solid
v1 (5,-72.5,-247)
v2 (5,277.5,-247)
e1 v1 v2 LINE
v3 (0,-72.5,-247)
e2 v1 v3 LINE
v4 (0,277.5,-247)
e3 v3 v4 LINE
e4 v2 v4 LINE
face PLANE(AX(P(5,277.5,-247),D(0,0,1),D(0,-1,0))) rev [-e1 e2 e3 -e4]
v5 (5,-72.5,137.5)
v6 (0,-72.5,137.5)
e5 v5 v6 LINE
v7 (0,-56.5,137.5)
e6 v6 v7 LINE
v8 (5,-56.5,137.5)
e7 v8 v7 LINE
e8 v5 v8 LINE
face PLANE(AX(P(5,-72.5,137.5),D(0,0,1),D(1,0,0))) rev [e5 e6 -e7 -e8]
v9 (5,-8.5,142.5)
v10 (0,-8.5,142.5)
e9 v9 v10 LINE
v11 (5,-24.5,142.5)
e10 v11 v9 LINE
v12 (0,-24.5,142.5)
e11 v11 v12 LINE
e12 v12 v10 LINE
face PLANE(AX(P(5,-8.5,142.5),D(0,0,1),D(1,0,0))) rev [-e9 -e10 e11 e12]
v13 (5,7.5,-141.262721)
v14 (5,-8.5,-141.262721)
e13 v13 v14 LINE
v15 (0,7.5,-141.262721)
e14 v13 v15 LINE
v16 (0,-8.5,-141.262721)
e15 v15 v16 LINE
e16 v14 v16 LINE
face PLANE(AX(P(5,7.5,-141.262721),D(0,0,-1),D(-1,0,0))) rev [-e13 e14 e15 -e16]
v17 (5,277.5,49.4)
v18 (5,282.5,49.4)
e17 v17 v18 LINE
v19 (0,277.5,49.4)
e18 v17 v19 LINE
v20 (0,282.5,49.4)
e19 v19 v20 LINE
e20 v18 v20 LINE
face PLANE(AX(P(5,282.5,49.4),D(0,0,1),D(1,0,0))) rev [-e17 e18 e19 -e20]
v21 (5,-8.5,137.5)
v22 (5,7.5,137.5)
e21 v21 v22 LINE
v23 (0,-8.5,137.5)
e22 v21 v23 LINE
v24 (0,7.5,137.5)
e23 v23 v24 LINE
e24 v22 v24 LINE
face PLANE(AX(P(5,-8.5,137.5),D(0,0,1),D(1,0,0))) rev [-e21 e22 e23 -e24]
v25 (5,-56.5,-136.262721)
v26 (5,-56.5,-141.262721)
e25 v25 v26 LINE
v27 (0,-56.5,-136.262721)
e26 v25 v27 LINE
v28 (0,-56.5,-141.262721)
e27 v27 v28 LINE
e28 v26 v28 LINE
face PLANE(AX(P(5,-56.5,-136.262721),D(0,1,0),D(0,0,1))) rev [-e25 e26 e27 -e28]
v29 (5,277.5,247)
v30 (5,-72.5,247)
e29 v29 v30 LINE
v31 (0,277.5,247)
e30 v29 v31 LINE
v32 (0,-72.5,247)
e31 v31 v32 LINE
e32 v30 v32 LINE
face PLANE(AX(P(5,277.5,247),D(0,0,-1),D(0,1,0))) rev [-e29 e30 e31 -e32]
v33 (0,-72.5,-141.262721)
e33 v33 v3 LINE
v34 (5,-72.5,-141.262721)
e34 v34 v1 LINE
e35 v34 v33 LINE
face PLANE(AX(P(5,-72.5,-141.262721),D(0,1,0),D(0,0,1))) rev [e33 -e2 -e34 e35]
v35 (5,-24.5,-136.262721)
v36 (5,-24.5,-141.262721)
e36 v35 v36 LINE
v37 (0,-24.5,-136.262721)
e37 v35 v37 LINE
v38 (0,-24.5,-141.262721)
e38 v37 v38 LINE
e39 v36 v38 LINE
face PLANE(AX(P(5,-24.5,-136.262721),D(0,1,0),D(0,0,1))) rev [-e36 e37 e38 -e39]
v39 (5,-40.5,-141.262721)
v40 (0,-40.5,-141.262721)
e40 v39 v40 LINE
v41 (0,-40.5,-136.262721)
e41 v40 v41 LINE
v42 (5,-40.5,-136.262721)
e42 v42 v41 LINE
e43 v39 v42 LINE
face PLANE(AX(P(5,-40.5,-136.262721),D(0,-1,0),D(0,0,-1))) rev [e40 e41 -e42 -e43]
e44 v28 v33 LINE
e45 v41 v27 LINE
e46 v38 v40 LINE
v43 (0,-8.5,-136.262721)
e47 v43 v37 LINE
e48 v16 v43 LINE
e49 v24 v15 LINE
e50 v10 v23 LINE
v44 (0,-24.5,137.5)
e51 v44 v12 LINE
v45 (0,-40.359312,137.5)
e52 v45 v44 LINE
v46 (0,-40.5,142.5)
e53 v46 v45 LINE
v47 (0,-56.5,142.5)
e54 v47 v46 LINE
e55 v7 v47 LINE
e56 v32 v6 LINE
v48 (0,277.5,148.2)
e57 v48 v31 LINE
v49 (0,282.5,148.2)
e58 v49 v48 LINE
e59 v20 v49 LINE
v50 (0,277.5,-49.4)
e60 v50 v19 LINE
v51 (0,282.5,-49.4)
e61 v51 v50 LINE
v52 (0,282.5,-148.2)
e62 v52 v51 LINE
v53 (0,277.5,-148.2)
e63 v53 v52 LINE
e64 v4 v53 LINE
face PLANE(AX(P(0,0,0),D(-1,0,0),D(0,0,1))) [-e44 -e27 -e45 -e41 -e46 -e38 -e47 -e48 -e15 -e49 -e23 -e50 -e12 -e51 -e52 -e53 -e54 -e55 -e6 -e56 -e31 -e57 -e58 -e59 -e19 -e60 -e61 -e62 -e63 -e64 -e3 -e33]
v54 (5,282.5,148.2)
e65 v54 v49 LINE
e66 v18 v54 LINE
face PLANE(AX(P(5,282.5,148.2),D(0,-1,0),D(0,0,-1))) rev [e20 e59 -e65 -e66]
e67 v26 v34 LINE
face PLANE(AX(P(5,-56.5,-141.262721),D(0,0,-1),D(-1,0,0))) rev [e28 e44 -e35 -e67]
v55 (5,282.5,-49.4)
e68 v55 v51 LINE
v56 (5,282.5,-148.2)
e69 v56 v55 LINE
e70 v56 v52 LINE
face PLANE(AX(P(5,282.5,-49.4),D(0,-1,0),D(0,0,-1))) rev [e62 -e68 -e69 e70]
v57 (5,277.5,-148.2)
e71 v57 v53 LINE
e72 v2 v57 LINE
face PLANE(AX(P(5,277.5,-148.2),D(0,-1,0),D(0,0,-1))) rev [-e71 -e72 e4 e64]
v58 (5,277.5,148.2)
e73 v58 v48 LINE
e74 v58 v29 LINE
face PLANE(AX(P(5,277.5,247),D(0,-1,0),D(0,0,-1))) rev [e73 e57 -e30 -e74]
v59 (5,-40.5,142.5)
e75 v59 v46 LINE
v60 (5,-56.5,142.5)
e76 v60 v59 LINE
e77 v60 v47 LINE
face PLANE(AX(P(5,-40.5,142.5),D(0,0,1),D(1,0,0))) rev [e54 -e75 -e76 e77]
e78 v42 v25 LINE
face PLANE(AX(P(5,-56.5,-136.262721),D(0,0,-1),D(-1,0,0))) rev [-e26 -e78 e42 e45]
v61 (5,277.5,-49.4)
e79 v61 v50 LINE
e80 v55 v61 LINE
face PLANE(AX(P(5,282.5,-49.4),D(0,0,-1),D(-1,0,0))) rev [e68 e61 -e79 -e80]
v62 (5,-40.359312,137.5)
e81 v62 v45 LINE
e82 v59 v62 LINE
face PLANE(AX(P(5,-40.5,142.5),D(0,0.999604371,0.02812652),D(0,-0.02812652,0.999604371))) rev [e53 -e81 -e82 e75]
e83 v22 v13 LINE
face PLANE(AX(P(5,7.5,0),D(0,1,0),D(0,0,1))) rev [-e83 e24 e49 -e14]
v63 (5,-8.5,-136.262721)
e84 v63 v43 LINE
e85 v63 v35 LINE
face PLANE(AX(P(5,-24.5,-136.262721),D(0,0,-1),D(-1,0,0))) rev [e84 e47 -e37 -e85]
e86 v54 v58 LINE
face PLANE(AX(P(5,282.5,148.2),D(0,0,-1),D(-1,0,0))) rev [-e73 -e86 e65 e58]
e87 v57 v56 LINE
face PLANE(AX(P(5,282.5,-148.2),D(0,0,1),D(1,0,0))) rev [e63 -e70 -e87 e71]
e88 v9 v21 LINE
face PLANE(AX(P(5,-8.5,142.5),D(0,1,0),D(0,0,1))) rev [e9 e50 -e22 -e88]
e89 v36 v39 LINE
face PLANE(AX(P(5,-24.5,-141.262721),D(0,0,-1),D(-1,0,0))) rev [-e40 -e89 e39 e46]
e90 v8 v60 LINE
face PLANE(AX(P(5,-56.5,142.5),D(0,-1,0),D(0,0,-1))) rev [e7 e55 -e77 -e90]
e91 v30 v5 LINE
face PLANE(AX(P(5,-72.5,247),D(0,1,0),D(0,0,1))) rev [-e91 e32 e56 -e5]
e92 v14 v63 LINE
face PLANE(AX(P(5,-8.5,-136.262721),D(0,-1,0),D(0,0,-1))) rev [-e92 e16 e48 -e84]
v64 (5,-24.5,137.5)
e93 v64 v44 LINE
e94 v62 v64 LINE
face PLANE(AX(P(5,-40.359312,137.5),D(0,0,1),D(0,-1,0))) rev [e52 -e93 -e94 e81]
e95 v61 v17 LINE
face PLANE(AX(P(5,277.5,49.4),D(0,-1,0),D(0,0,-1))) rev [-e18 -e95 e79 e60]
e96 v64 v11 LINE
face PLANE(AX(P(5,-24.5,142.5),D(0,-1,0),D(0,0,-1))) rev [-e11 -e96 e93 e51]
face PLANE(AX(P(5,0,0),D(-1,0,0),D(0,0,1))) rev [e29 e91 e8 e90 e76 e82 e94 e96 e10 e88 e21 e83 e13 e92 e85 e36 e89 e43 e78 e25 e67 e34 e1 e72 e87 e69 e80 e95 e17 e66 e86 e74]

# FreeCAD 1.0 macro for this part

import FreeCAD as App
import Part
import Sketcher
from FreeCAD import Vector


def add_polygon(sketch, points):
    """Adds a closed chain of lines whose ends are joined by coincident constraints."""
    first, n = sketch.GeometryCount, len(points)
    for a, b in zip(points, points[1:] + points[:1]):
        sketch.addGeometry(Part.LineSegment(App.Vector(*a, 0), App.Vector(*b, 0)), False)
    for i in range(n):
        sketch.addConstraint(Sketcher.Constraint("Coincident", first + i, 2, first + (i + 1) % n, 1))

doc = App.newDocument("Part")
body = doc.addObject("PartDesign::Body", "Body")

# Sketch on YZ plane
sketch1 = doc.addObject("Sketcher::SketchObject", "Sketch")
body.addObject(sketch1)
sketch1.AttachmentSupport = (doc.YZ_Plane, [""])
sketch1.MapMode = "FlatFace"
add_polygon(sketch1, [(277.5, 148.2), (277.5, 247), (-72.5, 247), (-72.5, 137.5), (-56.5, 137.5), (-56.5, 142.5), (-40.5, 142.5), (-40.359312, 137.5), (-24.5, 137.5), (-24.5, 142.5), (-8.5, 142.5), (-8.5, 137.5), (7.5, 137.5), (7.5, -141.262721), (-8.5, -141.262721), (-8.5, -136.262721), (-24.5, -136.262721), (-24.5, -141.262721), (-40.5, -141.262721), (-40.5, -136.262721), (-56.5, -136.262721), (-56.5, -141.262721), (-72.5, -141.262721), (-72.5, -247), (277.5, -247), (277.5, -148.2), (282.5, -148.2), (282.5, -49.4), (277.5, -49.4), (277.5, 49.4), (282.5, 49.4), (282.5, 148.2)])  # lines 0-31
sketch1.addConstraint([
    Sketcher.Constraint("Vertical", 0),
    Sketcher.Constraint("Horizontal", 1),
    Sketcher.Constraint("Vertical", 2),
    Sketcher.Constraint("Horizontal", 3),
    Sketcher.Constraint("Vertical", 4),
    Sketcher.Constraint("Horizontal", 5),
    Sketcher.Constraint("Horizontal", 7),
    Sketcher.Constraint("Vertical", 8),
    Sketcher.Constraint("Horizontal", 9),
    Sketcher.Constraint("Vertical", 10),
    Sketcher.Constraint("Horizontal", 11),
    Sketcher.Constraint("Vertical", 12),
    Sketcher.Constraint("Horizontal", 13),
    Sketcher.Constraint("Vertical", 14),
    Sketcher.Constraint("Horizontal", 15),
    Sketcher.Constraint("Vertical", 16),
    Sketcher.Constraint("Horizontal", 17),
    Sketcher.Constraint("Vertical", 18),
    Sketcher.Constraint("Horizontal", 19),
    Sketcher.Constraint("Vertical", 20),
    Sketcher.Constraint("Horizontal", 21),
    Sketcher.Constraint("Vertical", 22),
    Sketcher.Constraint("Horizontal", 23),
    Sketcher.Constraint("Vertical", 24),
    Sketcher.Constraint("Horizontal", 25),
    Sketcher.Constraint("Vertical", 26),
    Sketcher.Constraint("Horizontal", 27),
    Sketcher.Constraint("Vertical", 28),
    Sketcher.Constraint("Horizontal", 29),
    Sketcher.Constraint("Vertical", 30),
    Sketcher.Constraint("Horizontal", 31),
    Sketcher.Constraint("Symmetric", 1, 2, 22, 2, -1),
    Sketcher.Constraint("Symmetric", 26, 2, 29, 2, -1),
    Sketcher.Constraint("Symmetric", 24, 2, 31, 2, -1),
    Sketcher.Constraint("Horizontal", 3, 2, 6, 2),
    Sketcher.Constraint("Horizontal", 5, 2, 8, 2),
    Sketcher.Constraint("Horizontal", 7, 2, 10, 2),
    Sketcher.Constraint("Horizontal", 13, 2, 16, 2),
    Sketcher.Constraint("Horizontal", 15, 2, 18, 2),
    Sketcher.Constraint("Horizontal", 17, 2, 20, 2),
    Sketcher.Constraint("Vertical", 10, 2, 13, 2),
    Sketcher.Constraint("Vertical", 8, 2, 15, 2),
    Sketcher.Constraint("Vertical", 5, 2, 17, 2),
    Sketcher.Constraint("Vertical", 4, 2, 19, 2),
    Sketcher.Constraint("Vertical", 24, 2, 27, 2),
    Sketcher.Constraint("Equal", 3, 5),
    Sketcher.Constraint("Equal", 5, 9),
    Sketcher.Constraint("Equal", 9, 11),
    Sketcher.Constraint("Equal", 15, 17),
    Sketcher.Constraint("Equal", 31, 4),
    Sketcher.Constraint("Equal", 10, 14),
    Sketcher.Constraint("Equal", 24, 26),
    Sketcher.Constraint("Equal", 26, 28),
    Sketcher.Constraint("DistanceX", 1, 2, 1, 1, 350.0),
    Sketcher.Constraint("DistanceX", 3, 1, 3, 2, 16.0),
    Sketcher.Constraint("DistanceX", 25, 1, 25, 2, 5.0),
    Sketcher.Constraint("DistanceY", 0, 1, 0, 2, 98.8),
    Sketcher.Constraint("DistanceY", 2, 2, 2, 1, 109.5),
    Sketcher.Constraint("DistanceX", -1, 1, 0, 2, 277.5),
    Sketcher.Constraint("DistanceX", 7, 1, 7, 2, 15.859312),
    Sketcher.Constraint("DistanceY", 12, 2, 12, 1, 278.762721),
])
pad1 = doc.addObject("PartDesign::Pad", "Pad")
body.addObject(pad1)
pad1.Profile = sketch1
pad1.Length = 5

doc.recompute()
